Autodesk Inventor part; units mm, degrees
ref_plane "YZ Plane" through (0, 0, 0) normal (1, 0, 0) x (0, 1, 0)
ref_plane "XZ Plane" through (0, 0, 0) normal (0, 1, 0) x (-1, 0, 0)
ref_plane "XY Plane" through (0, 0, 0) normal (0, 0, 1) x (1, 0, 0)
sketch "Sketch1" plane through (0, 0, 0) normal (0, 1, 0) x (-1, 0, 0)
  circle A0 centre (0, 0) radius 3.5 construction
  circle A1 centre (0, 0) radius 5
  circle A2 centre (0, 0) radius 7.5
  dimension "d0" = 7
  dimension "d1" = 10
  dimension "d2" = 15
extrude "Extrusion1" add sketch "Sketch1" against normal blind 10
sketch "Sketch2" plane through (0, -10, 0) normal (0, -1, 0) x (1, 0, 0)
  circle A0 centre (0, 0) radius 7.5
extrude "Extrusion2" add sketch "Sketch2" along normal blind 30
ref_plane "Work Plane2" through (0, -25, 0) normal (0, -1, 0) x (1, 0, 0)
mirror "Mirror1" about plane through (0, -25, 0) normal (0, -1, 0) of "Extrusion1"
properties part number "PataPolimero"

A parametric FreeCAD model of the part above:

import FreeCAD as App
import Part
import Sketcher
Q = App.Units.Quantity

doc = App.newDocument("Part")
body = doc.addObject("PartDesign::Body", "Body")

# Sketch on XZ plane
sketch1 = body.newObject("Sketcher::SketchObject", "Sketch")
sketch1.AttachmentSupport = (doc.getObject("XZ_Plane"), [""])
sketch1.MapMode = "FlatFace"
sketch1.addGeometry([
    Part.Circle(App.Vector(0, 0, 0), App.Vector(0, 0, 1), 8),
    Part.Circle(App.Vector(0, 0, 0), App.Vector(0, 0, 1), 5),
], False)
sketch1.addConstraint([
    Sketcher.Constraint("Coincident", 0, 3, -1, 1),
    Sketcher.Constraint("Coincident", 1, 3, -1, 1),
    Sketcher.Constraint("Diameter", 0, Q("15 mm")),
    Sketcher.Constraint("Diameter", 1, Q("10 mm")),
])
pad1 = body.newObject("PartDesign::Pad", "Pad")
pad1.Profile = sketch1
pad1.Length = 10

# Sketch on XZ plane
sketch2 = body.newObject("Sketcher::SketchObject", "Sketch001")
sketch2.AttachmentSupport = (doc.getObject("XZ_Plane"), [""])
sketch2.MapMode = "FlatFace"
sketch2.AttachmentOffset = App.Placement(App.Vector(0, 0, 10), App.Rotation())
sketch2.addGeometry(Part.Circle(App.Vector(0, 0, 0), App.Vector(0, 0, 1), 8), False)
sketch2.addConstraint([
    Sketcher.Constraint("Coincident", 0, 3, -1, 1),
    Sketcher.Constraint("Diameter", 0, Q("15 mm")),
])
pad2 = body.newObject("PartDesign::Pad", "Pad001")
pad2.Profile = sketch2
pad2.Length = 30
doc.recompute()

datumplane = body.newObject("PartDesign::Plane", "DatumPlane")
datumplane.AttachmentSupport = (doc.getObject("XZ_Plane"), [""])
datumplane.MapMode = "FlatFace"
datumplane.AttachmentOffset = App.Placement(App.Vector(0, 0, 25), App.Rotation())
mirrored = body.newObject("PartDesign::Mirrored", "Mirrored")
mirrored.Originals = [pad1]
mirrored.MirrorPlane = (datumplane, [""])
body.Tip = mirrored

doc.recompute()
